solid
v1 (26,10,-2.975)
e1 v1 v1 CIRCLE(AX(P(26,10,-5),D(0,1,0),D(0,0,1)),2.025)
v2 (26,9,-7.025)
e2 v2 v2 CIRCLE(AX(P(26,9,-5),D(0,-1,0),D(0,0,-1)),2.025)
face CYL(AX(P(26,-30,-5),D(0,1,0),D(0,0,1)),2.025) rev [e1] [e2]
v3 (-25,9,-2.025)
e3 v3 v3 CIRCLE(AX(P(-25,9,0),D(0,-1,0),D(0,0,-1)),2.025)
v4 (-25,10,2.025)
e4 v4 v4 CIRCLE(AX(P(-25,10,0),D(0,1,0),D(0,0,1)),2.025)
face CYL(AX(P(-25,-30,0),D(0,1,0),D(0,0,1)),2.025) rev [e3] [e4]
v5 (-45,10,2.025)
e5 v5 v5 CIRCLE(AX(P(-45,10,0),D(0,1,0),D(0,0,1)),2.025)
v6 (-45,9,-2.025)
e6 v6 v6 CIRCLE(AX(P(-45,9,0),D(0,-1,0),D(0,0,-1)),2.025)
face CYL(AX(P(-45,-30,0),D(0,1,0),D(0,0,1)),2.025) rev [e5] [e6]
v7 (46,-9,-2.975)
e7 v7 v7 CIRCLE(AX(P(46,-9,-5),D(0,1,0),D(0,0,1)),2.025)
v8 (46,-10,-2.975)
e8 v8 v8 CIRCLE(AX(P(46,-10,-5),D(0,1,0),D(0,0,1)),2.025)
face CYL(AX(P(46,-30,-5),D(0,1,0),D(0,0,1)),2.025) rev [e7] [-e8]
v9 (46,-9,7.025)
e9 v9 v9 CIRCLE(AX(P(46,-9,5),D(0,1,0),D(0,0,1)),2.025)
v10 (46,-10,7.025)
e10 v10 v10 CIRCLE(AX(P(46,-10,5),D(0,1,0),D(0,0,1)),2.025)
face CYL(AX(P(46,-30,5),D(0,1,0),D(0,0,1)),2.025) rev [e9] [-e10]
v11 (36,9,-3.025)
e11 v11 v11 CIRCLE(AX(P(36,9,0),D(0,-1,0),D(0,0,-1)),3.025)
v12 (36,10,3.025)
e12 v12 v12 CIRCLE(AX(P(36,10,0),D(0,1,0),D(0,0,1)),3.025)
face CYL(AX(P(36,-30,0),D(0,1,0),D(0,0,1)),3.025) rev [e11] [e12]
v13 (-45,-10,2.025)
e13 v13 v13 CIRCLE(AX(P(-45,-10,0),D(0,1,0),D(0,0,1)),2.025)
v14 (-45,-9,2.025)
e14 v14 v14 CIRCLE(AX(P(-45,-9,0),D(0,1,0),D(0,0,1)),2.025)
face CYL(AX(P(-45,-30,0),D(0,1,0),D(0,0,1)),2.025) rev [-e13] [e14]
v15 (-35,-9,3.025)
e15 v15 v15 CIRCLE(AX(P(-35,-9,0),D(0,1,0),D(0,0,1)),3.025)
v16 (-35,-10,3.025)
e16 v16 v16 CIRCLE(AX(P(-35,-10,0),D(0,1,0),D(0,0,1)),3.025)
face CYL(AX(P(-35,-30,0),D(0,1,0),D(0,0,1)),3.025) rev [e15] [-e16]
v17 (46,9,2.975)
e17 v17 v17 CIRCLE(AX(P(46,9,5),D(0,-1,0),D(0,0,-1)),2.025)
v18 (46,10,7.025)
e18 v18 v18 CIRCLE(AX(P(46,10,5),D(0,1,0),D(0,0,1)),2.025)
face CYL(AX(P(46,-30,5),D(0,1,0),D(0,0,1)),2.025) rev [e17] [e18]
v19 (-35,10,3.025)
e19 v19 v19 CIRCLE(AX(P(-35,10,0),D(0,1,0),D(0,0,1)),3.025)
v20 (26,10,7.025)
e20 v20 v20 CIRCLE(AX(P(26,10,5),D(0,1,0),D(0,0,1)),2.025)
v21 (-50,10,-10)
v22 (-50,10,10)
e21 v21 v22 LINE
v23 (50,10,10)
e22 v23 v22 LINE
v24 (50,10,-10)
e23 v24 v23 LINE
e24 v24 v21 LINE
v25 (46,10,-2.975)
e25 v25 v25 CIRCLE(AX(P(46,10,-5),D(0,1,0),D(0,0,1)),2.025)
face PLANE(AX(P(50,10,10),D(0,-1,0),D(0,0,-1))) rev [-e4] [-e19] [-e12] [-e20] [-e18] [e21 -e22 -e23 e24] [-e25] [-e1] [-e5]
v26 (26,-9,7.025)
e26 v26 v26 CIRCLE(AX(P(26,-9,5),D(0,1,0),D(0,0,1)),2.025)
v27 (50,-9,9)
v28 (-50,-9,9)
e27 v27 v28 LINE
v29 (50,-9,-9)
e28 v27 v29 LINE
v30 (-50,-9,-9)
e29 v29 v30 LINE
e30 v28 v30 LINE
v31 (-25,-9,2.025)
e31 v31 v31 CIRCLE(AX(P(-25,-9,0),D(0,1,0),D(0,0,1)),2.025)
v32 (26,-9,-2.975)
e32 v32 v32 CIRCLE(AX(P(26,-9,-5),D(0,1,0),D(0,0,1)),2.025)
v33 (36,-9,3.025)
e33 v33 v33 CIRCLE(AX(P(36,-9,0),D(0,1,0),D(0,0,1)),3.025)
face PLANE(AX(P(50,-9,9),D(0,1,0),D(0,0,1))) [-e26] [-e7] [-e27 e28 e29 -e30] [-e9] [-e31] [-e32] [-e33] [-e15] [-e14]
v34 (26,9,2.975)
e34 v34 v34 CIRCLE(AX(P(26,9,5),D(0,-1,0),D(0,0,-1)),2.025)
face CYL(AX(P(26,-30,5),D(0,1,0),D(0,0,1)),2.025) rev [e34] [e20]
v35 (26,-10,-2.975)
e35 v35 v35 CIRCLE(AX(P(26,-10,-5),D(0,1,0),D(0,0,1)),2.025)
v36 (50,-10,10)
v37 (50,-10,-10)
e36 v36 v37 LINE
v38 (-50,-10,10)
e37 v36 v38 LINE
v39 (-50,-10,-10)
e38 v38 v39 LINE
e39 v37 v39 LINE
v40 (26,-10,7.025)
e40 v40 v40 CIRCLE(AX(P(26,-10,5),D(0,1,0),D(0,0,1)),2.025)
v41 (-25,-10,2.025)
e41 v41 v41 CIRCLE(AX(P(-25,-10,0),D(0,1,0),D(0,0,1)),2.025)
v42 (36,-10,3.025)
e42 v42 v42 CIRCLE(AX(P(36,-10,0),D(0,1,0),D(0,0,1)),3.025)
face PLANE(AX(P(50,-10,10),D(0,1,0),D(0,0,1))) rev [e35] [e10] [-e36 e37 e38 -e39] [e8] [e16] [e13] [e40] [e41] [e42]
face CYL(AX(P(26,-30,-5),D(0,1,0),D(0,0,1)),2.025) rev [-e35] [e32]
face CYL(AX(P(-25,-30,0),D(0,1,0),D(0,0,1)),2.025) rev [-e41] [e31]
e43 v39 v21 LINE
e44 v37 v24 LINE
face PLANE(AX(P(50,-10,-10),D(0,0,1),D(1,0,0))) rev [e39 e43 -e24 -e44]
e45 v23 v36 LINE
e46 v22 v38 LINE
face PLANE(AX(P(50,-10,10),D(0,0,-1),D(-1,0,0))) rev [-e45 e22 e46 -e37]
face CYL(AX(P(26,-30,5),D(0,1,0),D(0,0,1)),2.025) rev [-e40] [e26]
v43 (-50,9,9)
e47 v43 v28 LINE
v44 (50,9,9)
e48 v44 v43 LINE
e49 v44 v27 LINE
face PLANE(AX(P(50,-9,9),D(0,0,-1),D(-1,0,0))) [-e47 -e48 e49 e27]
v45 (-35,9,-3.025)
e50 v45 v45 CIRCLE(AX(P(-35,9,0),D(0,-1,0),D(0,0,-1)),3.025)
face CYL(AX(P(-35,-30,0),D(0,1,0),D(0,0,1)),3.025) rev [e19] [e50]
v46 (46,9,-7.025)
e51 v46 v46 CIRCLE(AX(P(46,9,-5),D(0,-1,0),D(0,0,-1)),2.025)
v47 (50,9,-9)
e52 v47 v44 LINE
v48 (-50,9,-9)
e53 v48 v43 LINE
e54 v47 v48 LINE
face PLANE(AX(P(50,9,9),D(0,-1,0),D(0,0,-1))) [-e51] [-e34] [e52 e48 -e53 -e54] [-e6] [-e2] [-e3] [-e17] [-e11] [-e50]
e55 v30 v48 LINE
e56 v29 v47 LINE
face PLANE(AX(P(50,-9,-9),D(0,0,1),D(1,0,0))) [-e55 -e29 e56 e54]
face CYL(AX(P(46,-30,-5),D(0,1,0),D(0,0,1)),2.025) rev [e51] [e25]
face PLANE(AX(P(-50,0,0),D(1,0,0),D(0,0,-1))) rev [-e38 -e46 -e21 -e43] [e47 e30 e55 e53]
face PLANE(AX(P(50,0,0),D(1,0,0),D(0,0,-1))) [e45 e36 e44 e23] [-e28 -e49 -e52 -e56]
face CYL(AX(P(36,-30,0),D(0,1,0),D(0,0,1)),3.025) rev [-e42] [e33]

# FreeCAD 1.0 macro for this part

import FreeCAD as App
import Part
import Sketcher

V = App.Vector
Q = App.Units.Quantity


def add_polygon(sketch, points):
    """Adds a closed chain of lines whose ends are joined by coincident constraints."""
    first, n = sketch.GeometryCount, len(points)
    for a, b in zip(points, points[1:] + points[:1]):
        sketch.addGeometry(Part.LineSegment(App.Vector(*a, 0), App.Vector(*b, 0)), False)
    for i in range(n):
        sketch.addConstraint(Sketcher.Constraint("Coincident", first + i, 2, first + (i + 1) % n, 1))

doc = App.newDocument("Part")
body = doc.addObject("PartDesign::Body", "Body")

# Sketch on YZ plane
sketch1 = doc.addObject("Sketcher::SketchObject", "Sketch")
body.addObject(sketch1)
sketch1.AttachmentSupport = (doc.YZ_Plane, [""])
sketch1.MapMode = "FlatFace"
add_polygon(sketch1, [(10, 10), (-10, 10), (-10, -10), (10, -10)])  # lines 0-3
add_polygon(sketch1, [(-9, -9), (-9, 9), (9, 9), (9, -9)])  # lines 4-7
sketch1.addConstraint([
    Sketcher.Constraint("Horizontal", 0),
    Sketcher.Constraint("Vertical", 1),
    Sketcher.Constraint("Horizontal", 2),
    Sketcher.Constraint("Vertical", 3),
    Sketcher.Constraint("Vertical", 4),
    Sketcher.Constraint("Horizontal", 5),
    Sketcher.Constraint("Vertical", 6),
    Sketcher.Constraint("Horizontal", 7),
    Sketcher.Constraint("Symmetric", 0, 2, 2, 2, -1, 1),
    Sketcher.Constraint("Symmetric", 4, 2, 6, 2, -1, 1),
    Sketcher.Constraint("Equal", 2, 1),
    Sketcher.Constraint("Equal", 7, 4),
    Sketcher.Constraint("DistanceX", 0, 2, 0, 1, Q("20 mm")),
    Sketcher.Constraint("DistanceX", 5, 1, 5, 2, Q("18 mm")),
])
pad1 = doc.addObject("PartDesign::Pad", "Pad")
body.addObject(pad1)
pad1.Profile = sketch1
pad1.Length = 100
pad1.Midplane = True

# Sketch on XZ plane
sketch2 = doc.addObject("Sketcher::SketchObject", "Sketch001")
body.addObject(sketch2)
sketch2.AttachmentSupport = (doc.XZ_Plane, [""])
sketch2.MapMode = "FlatFace"
sketch2.AttachmentOffset = App.Placement(V(0, 0, -10), App.Rotation())
sketch2.addGeometry([
    Part.Circle(V(26, -5, 0), V(0, 0, 1), 2),  # 0
    Part.Circle(V(46, -5, 0), V(0, 0, 1), 2),  # 1
    Part.Circle(V(46, 5, 0), V(0, 0, 1), 2),  # 2
    Part.Circle(V(26, 5, 0), V(0, 0, 1), 2),  # 3
    Part.Circle(V(36, 0, 0), V(0, 0, 1), 3),  # 4
    Part.Circle(V(-45, 0, 0), V(0, 0, 1), 2),  # 5
    Part.Circle(V(-25, 0, 0), V(0, 0, 1), 2),  # 6
    Part.Circle(V(-35, 0, 0), V(0, 0, 1), 3),  # 7
], False)
sketch2.addConstraint([
    Sketcher.Constraint("Equal", 0, 1),
    Sketcher.Constraint("Equal", 1, 2),
    Sketcher.Constraint("Equal", 2, 3),
    Sketcher.Constraint("Equal", 3, 5),
    Sketcher.Constraint("Equal", 5, 6),
    Sketcher.Constraint("Equal", 4, 7),
    Sketcher.Constraint("Symmetric", 1, 3, 2, 3, -1),
    Sketcher.Constraint("Symmetric", 0, 3, 3, 3, -1),
    Sketcher.Constraint("PointOnObject", 4, 3, -1),
    Sketcher.Constraint("PointOnObject", 5, 3, -1),
    Sketcher.Constraint("PointOnObject", 6, 3, -1),
    Sketcher.Constraint("PointOnObject", 7, 3, -1),
    Sketcher.Constraint("Horizontal", 0, 3, 1, 3),
    Sketcher.Constraint("Diameter", 0, Q("4.05 mm")),
    Sketcher.Constraint("Diameter", 4, Q("6.05 mm")),
    Sketcher.Constraint("DistanceX", -1, 1, 0, 3, Q("26 mm")),
    Sketcher.Constraint("DistanceY", 0, 3, -1, 1, Q("5 mm")),
    Sketcher.Constraint("DistanceX", -1, 1, 1, 3, Q("46 mm")),
    Sketcher.Constraint("DistanceX", -1, 1, 4, 3, Q("36 mm")),
    Sketcher.Constraint("DistanceX", 5, 3, -1, 1, Q("45 mm")),
    Sketcher.Constraint("DistanceX", 6, 3, -1, 1, Q("25 mm")),
    Sketcher.Constraint("DistanceX", 7, 3, -1, 1, Q("35 mm")),
])
pocket1 = doc.addObject("PartDesign::Pocket", "Pocket")
body.addObject(pocket1)
pocket1.Profile = sketch2
pocket1.Length = 40
pocket1.Reversed = True

doc.recompute()
